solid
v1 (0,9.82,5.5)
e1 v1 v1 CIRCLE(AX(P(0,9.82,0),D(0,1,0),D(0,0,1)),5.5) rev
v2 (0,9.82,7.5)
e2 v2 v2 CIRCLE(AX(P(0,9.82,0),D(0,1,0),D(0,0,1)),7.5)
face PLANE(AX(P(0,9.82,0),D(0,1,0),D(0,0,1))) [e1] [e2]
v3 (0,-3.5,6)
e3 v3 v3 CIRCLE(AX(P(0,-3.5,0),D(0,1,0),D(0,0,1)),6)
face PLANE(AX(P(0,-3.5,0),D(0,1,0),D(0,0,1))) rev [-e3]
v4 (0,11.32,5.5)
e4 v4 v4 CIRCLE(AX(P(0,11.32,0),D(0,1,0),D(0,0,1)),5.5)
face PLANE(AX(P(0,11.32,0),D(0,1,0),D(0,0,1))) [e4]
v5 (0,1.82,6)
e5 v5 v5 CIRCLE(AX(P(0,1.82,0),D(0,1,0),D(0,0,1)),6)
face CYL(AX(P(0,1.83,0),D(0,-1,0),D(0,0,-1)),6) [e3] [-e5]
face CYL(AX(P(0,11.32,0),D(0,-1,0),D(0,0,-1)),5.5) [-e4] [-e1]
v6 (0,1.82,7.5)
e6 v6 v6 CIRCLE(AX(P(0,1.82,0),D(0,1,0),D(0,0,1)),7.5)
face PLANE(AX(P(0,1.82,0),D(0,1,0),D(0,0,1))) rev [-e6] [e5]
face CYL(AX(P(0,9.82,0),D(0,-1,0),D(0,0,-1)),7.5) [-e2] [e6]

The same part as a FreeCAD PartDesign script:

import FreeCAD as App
import Part
import Sketcher

V = App.Vector

doc = App.newDocument("Part")
params = doc.addObject("Spreadsheet::Sheet", "Params")
for row, (alias, value) in enumerate([
    ("sketch1_diameter", "12 mm"),
    ("pad1_length", "5.33 mm"),
    ("sketch2_diameter", "15 mm"),
    ("pad2_length", "8 mm"),
    ("sketch3_diameter", "11 mm"),
    ("pad3_length", "1.51 mm"),
], start=1):
    params.set(f"A{row}", alias)
    params.set(f"B{row}", "=" + value)
    params.setAlias(f"B{row}", alias)

body = doc.addObject("PartDesign::Body", "Body")

sketch1 = body.newObject("Sketcher::SketchObject", "Sketch")
sketch1.AttachmentSupport = (doc.getObject("XZ_Plane"), [""])
sketch1.MapMode = "FlatFace"
sketch1.AttachmentOffset = App.Placement(V(0, 0, 3.5), App.Rotation())
sketch1.addGeometry(Part.Circle(V(0, 0, 0), V(0, 0, 1), 6), False)
sketch1.addConstraint(Sketcher.Constraint("Coincident", 0, 3, -1, 1))
sketch1.addConstraint(Sketcher.Constraint("Diameter", 0, 12.0))
sketch1.setExpression("Constraints[1]", "Params.sketch1_diameter")
pad1 = body.newObject("PartDesign::Pad", "Pad")
pad1.Profile = sketch1
pad1.setExpression("Length", "Params.pad1_length")
pad1.Reversed = True

sketch2 = body.newObject("Sketcher::SketchObject", "Sketch001")
sketch2.AttachmentSupport = (doc.getObject("XZ_Plane"), [""])
sketch2.MapMode = "FlatFace"
sketch2.AttachmentOffset = App.Placement(V(0, 0, -1.82), App.Rotation())
sketch2.addGeometry(Part.Circle(V(0, 0, 0), V(0, 0, 1), 7.5), False)
sketch2.addConstraint(Sketcher.Constraint("Coincident", 0, 3, -1, 1))
sketch2.addConstraint(Sketcher.Constraint("Diameter", 0, 15.0))
sketch2.setExpression("Constraints[1]", "Params.sketch2_diameter")
pad2 = body.newObject("PartDesign::Pad", "Pad001")
pad2.Profile = sketch2
pad2.setExpression("Length", "Params.pad2_length")
pad2.Reversed = True

sketch3 = body.newObject("Sketcher::SketchObject", "Sketch002")
sketch3.AttachmentSupport = (doc.getObject("XZ_Plane"), [""])
sketch3.MapMode = "FlatFace"
sketch3.AttachmentOffset = App.Placement(V(0, 0, -9.81), App.Rotation())
sketch3.addGeometry(Part.Circle(V(0, 0, 0), V(0, 0, 1), 5.5), False)
sketch3.addConstraint(Sketcher.Constraint("Coincident", 0, 3, -1, 1))
sketch3.addConstraint(Sketcher.Constraint("Diameter", 0, 11.0))
sketch3.setExpression("Constraints[1]", "Params.sketch3_diameter")
pad3 = body.newObject("PartDesign::Pad", "Pad002")
pad3.Profile = sketch3
pad3.setExpression("Length", "Params.pad3_length")
pad3.Reversed = True

doc.recompute()
